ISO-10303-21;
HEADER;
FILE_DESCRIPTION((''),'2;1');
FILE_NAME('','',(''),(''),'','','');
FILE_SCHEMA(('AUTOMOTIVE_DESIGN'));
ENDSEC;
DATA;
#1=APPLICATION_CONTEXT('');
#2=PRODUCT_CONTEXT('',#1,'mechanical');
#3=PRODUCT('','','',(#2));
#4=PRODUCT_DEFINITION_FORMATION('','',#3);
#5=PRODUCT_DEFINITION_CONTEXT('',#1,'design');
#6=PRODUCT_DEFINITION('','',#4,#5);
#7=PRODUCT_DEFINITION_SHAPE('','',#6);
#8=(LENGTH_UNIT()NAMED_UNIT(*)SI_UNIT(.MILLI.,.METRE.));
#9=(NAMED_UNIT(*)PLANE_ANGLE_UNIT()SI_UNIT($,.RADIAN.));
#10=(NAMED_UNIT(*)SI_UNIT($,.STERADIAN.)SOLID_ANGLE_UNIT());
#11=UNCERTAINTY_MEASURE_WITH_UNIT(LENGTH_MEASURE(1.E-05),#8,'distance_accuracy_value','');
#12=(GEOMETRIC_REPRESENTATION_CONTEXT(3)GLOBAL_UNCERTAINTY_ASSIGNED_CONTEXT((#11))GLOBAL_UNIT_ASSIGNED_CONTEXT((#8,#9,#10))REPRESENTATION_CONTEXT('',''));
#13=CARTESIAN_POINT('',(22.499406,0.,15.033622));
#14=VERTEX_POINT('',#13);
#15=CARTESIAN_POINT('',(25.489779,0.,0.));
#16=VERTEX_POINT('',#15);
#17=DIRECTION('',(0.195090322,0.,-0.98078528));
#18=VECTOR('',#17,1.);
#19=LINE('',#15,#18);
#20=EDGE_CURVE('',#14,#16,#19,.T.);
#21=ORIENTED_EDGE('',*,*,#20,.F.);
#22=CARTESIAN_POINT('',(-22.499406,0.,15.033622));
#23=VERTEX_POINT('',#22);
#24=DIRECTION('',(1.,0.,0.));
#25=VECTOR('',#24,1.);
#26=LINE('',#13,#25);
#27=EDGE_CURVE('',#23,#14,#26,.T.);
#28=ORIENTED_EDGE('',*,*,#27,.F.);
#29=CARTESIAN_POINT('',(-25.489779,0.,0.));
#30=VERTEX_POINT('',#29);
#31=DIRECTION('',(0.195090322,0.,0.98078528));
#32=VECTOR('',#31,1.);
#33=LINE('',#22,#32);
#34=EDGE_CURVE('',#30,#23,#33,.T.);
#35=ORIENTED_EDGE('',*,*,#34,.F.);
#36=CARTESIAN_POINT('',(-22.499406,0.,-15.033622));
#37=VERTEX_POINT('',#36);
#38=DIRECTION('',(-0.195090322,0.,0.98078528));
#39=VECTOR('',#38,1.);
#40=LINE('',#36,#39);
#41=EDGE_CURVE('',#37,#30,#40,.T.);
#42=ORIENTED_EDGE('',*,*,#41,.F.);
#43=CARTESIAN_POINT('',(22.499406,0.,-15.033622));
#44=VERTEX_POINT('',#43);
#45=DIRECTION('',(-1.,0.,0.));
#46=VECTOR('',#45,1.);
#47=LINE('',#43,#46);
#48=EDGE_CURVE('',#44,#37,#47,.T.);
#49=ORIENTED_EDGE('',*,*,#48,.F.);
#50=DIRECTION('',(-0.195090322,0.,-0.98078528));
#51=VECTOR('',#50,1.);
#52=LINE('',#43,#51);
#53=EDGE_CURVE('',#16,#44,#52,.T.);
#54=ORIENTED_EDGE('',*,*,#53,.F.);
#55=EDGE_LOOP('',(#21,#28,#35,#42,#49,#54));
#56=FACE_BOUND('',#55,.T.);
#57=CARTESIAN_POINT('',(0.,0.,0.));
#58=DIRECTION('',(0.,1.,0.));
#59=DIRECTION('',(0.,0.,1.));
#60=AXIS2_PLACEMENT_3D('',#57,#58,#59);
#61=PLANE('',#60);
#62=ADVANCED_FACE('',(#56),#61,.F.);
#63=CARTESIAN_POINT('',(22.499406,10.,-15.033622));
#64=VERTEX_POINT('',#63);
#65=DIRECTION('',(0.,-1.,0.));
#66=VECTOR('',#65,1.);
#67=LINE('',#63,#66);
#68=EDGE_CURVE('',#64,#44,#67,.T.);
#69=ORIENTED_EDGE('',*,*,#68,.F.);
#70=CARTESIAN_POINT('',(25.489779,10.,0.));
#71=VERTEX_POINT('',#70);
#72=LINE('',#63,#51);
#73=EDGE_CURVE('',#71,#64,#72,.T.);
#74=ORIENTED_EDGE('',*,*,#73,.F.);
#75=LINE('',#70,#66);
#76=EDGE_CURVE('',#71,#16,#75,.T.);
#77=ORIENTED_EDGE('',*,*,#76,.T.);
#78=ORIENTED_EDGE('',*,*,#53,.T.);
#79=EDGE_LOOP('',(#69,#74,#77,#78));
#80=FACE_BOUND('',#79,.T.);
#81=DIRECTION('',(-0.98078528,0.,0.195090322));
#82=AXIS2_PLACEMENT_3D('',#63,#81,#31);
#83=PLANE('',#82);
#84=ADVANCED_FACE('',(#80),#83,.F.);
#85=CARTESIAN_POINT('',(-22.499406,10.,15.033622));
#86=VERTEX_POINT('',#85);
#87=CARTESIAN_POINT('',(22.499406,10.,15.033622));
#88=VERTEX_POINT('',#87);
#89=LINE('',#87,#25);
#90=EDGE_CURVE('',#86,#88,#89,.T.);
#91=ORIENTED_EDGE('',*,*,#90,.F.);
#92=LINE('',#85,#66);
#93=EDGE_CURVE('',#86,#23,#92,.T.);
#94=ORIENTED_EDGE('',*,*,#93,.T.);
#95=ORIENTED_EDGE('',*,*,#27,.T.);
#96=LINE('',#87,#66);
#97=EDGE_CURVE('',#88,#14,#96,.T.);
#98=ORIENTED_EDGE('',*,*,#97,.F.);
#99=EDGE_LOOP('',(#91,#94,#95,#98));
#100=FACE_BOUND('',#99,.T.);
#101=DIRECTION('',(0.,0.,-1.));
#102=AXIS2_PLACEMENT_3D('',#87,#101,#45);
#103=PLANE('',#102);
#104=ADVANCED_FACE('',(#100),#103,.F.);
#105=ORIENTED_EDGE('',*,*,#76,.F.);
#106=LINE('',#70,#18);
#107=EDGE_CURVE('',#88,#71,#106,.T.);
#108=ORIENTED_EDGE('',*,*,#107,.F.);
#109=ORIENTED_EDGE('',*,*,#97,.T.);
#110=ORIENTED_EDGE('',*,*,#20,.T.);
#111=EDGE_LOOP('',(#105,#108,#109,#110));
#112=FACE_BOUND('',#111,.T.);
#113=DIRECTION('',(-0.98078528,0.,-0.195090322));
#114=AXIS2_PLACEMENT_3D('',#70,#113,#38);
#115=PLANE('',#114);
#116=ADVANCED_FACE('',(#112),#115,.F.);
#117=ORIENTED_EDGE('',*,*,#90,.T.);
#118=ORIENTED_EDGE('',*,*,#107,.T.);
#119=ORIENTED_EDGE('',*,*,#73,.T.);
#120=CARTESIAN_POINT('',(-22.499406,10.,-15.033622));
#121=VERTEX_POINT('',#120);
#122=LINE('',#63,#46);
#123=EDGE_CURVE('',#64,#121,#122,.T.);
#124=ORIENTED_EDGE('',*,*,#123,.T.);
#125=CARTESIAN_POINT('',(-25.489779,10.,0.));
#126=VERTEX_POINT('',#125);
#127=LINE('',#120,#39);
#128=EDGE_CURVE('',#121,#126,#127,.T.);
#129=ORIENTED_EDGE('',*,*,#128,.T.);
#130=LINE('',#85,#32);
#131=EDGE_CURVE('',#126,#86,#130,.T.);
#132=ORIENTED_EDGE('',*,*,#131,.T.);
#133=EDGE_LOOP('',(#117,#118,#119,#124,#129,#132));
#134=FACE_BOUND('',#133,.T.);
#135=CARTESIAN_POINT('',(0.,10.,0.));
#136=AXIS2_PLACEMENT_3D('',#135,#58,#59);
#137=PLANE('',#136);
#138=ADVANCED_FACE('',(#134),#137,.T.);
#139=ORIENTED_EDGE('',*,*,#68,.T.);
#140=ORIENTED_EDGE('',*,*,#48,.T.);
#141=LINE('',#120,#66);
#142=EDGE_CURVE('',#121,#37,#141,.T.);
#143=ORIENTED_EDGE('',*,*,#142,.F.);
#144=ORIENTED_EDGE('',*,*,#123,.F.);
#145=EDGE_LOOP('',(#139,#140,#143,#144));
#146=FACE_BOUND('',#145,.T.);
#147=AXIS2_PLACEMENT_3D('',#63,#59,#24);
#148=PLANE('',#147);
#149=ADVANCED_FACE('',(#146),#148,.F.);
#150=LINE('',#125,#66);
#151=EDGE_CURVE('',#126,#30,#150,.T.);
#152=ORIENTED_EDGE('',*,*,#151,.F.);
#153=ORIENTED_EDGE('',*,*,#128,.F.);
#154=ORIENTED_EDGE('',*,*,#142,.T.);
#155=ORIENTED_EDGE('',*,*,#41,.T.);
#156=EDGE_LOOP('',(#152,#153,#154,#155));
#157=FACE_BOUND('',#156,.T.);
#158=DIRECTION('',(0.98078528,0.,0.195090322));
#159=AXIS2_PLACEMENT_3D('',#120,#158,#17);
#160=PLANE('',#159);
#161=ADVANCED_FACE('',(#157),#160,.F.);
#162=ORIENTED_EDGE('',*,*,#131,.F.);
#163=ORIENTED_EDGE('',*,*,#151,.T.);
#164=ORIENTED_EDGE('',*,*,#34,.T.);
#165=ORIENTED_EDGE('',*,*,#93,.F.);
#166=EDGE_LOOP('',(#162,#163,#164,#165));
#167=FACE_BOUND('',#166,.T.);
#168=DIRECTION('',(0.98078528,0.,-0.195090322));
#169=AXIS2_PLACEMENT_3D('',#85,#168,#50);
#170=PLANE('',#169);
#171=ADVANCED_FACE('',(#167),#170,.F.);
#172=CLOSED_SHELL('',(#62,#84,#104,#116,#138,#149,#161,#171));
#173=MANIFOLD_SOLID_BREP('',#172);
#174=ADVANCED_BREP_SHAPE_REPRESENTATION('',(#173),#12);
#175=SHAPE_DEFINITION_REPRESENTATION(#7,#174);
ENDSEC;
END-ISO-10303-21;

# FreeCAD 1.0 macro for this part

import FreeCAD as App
import Part
import Sketcher

V = App.Vector
Q = App.Units.Quantity


def add_polygon(sketch, points):
    """Adds a closed chain of lines whose ends are joined by coincident constraints."""
    first, n = sketch.GeometryCount, len(points)
    for a, b in zip(points, points[1:] + points[:1]):
        sketch.addGeometry(Part.LineSegment(App.Vector(*a, 0), App.Vector(*b, 0)), False)
    for i in range(n):
        sketch.addConstraint(Sketcher.Constraint("Coincident", first + i, 2, first + (i + 1) % n, 1))

doc = App.newDocument("Part")
body = doc.addObject("PartDesign::Body", "Body")

# Sketch on XZ plane
sketch1 = body.newObject("Sketcher::SketchObject", "Sketch")
sketch1.AttachmentSupport = (doc.getObject("XZ_Plane"), [""])
sketch1.MapMode = "FlatFace"
add_polygon(sketch1, [(25, 0), (22, -15), (-22, -15), (-25, 0), (-22, 15), (22, 15)])  # lines 0-5
sketch1.addConstraint([
    Sketcher.Constraint("Horizontal", 1),
    Sketcher.Constraint("Horizontal", 4),
    Sketcher.Constraint("Symmetric", 0, 2, 3, 2, -1, 1),
    Sketcher.Constraint("Symmetric", 2, 2, 5, 2, -1, 1),
    Sketcher.Constraint("PointOnObject", 2, 2, -1),
    Sketcher.Constraint("Parallel", 2, 5),
    Sketcher.Constraint("Vertical", 1, 2, 3, 2),
    Sketcher.Constraint("Angle", 0, Q("-101.25 deg")),
    Sketcher.Constraint("DistanceX", 1, 2, 1, 1, Q("44.998811 mm")),
    Sketcher.Constraint("Distance", 0, Q("15.328148 mm")),
])
pad1 = body.newObject("PartDesign::Pad", "Pad")
pad1.Profile = sketch1
pad1.Length = 10
pad1.Reversed = True

doc.recompute()
